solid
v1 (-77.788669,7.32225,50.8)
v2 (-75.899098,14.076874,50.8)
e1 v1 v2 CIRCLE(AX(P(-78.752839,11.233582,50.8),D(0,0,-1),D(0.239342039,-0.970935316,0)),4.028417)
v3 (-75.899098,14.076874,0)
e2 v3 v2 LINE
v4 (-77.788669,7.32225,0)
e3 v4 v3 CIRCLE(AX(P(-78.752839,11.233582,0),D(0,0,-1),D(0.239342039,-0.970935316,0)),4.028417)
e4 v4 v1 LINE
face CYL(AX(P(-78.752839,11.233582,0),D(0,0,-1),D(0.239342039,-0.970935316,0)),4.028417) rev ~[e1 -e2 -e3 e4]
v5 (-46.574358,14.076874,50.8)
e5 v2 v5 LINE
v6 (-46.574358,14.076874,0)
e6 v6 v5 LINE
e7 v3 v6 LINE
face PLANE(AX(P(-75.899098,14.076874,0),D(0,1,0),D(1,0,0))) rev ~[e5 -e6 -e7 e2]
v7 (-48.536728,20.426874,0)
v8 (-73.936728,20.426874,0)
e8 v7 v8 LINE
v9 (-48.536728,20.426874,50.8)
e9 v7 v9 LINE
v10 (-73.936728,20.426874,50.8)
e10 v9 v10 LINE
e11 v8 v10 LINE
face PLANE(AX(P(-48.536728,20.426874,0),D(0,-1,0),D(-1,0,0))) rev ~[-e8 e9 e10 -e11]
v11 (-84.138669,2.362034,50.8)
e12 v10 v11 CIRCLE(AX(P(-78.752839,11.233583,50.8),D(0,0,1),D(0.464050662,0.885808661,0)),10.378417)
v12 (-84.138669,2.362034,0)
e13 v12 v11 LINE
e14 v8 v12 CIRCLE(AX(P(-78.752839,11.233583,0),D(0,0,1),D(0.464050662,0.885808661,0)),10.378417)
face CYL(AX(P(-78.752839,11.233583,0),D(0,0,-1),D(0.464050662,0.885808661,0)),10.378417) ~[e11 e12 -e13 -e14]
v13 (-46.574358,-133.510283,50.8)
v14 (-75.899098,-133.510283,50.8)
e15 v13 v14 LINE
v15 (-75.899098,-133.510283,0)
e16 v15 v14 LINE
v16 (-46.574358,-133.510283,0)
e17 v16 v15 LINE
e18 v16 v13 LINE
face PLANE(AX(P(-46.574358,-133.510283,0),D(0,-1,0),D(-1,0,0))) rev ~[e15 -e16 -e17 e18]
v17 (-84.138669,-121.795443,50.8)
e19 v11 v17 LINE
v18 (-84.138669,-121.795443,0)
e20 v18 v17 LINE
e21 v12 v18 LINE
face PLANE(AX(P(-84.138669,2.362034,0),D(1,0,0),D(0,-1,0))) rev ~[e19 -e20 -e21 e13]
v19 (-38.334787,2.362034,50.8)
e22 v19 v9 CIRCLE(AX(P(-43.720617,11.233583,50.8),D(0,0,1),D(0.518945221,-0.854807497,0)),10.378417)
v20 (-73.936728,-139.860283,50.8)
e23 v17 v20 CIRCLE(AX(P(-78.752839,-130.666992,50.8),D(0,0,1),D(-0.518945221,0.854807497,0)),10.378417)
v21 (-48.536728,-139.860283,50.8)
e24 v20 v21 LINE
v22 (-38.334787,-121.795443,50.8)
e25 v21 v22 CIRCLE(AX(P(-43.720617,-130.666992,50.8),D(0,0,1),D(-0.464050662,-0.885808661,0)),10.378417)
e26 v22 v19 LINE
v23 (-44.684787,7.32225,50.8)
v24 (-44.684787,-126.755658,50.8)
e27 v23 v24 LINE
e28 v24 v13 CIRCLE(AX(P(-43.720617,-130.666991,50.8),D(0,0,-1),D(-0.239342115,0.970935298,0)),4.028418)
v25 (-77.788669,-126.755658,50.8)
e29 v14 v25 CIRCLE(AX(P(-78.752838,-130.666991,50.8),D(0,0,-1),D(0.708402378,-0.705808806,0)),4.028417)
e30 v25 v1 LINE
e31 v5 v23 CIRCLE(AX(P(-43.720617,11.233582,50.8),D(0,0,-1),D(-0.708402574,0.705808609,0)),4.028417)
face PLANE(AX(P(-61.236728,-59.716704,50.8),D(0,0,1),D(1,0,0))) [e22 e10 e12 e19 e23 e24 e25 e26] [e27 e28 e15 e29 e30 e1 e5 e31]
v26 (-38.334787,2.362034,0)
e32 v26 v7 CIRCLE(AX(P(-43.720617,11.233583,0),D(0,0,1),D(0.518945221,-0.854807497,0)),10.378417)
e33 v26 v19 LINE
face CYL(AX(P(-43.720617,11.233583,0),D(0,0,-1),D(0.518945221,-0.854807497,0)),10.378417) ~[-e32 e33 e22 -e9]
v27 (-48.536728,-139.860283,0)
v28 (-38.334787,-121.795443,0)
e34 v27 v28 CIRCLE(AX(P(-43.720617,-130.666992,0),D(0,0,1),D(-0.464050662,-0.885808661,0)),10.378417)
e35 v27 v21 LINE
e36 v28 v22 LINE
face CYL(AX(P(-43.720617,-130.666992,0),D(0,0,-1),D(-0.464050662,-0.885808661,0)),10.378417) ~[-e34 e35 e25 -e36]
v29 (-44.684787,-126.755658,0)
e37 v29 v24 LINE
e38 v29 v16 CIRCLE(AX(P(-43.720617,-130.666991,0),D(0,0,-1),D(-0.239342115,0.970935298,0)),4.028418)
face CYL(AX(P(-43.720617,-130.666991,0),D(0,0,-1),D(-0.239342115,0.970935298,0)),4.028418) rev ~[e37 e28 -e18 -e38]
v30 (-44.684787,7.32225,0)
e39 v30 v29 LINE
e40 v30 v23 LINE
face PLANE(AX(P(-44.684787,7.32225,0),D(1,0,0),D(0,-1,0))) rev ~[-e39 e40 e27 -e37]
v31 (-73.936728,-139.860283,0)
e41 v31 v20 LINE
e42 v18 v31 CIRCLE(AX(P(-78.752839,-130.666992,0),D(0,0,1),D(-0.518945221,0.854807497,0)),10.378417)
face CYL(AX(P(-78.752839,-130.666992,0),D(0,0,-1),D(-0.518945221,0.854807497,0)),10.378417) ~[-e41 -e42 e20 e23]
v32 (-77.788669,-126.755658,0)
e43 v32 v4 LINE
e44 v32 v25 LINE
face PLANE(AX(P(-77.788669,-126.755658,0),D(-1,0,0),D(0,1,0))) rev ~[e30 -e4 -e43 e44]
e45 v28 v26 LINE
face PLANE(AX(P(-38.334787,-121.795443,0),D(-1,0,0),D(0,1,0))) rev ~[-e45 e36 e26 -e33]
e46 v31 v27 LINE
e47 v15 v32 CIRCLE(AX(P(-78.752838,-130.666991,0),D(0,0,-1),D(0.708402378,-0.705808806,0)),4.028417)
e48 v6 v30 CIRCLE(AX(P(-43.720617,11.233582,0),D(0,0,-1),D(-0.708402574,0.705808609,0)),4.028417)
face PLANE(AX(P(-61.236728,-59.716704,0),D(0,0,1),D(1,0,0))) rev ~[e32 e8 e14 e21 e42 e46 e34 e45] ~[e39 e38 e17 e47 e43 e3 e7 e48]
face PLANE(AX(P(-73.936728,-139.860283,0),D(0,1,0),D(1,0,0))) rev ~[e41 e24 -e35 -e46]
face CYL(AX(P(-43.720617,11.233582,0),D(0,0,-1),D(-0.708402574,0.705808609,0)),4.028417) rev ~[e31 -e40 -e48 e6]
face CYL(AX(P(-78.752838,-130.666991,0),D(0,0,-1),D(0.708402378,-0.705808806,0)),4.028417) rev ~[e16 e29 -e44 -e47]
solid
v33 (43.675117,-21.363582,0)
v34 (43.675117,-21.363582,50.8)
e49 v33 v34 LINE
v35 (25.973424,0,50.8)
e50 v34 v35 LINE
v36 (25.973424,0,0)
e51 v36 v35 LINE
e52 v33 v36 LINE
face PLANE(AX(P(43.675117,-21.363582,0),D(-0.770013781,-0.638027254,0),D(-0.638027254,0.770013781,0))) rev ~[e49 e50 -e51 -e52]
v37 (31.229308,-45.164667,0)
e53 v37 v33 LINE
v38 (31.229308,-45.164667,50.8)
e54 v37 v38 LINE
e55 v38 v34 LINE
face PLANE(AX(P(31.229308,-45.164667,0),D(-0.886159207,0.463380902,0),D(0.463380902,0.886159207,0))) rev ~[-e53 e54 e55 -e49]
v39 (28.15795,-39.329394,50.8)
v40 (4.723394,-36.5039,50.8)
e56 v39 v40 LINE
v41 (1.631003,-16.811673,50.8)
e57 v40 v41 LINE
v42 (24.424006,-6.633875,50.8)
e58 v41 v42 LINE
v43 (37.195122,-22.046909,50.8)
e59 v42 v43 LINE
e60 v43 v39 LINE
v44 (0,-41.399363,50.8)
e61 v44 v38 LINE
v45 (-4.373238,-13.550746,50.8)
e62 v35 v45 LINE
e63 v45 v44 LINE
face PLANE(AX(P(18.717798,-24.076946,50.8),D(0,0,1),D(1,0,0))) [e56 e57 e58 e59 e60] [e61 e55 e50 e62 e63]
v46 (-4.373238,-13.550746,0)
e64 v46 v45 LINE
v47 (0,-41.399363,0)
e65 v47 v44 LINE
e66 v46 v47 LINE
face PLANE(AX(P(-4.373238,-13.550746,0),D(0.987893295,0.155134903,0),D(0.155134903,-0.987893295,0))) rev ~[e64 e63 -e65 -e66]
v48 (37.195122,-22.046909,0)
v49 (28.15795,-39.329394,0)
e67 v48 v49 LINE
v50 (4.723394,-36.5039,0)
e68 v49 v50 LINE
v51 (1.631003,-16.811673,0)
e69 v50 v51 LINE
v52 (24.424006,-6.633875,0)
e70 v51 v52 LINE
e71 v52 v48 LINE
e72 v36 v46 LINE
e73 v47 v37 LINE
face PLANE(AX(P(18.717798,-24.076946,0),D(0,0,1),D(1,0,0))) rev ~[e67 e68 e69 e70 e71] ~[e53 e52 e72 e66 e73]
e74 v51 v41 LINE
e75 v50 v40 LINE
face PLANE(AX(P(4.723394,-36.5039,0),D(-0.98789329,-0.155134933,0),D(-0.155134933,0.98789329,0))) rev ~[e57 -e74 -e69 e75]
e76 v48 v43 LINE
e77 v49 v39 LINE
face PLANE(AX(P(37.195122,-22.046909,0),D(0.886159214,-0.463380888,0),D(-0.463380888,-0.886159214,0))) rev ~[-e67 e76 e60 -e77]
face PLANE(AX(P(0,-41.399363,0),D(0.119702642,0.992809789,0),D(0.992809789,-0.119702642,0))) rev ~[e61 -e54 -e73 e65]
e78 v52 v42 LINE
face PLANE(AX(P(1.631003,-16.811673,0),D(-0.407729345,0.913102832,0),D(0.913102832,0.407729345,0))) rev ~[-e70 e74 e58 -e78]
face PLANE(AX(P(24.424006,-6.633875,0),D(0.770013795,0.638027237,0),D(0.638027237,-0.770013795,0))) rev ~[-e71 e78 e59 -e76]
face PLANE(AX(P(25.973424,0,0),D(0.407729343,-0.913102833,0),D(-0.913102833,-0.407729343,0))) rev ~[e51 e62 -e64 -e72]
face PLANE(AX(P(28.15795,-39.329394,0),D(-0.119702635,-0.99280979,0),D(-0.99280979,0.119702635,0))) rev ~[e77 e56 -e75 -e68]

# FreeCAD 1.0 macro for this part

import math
import FreeCAD as App
import Part
import Sketcher

V = App.Vector
Q = App.Units.Quantity


def add_polygon(sketch, points):
    """Adds a closed chain of lines whose ends are joined by coincident constraints."""
    first, n = sketch.GeometryCount, len(points)
    for a, b in zip(points, points[1:] + points[:1]):
        sketch.addGeometry(Part.LineSegment(App.Vector(*a, 0), App.Vector(*b, 0)), False)
    for i in range(n):
        sketch.addConstraint(Sketcher.Constraint("Coincident", first + i, 2, first + (i + 1) % n, 1))

doc = App.newDocument("Part")
body = doc.addObject("PartDesign::Body", "Body")

sketch1 = doc.addObject("Sketcher::SketchObject", "Sketch")
body.addObject(sketch1)
sketch1.AttachmentSupport = (doc.XY_Plane, [""])
sketch1.MapMode = "FlatFace"
sketch1.addGeometry(Part.LineSegment(V(-84.1, 2.4, 0), V(-84.1, -121.8, 0)), False)
sketch1.addGeometry(Part.ArcOfCircle(Part.Circle(V(-78.8, -130.7, 0), V(0, 0, 1), 10.4), math.radians(121), math.radians(298)), False)
sketch1.addGeometry(Part.LineSegment(V(-73.9, -139.9, 0), V(-48.5, -139.9, 0)), False)
sketch1.addGeometry(Part.ArcOfCircle(Part.Circle(V(-43.7, -130.7, 0), V(0, 0, 1), 10.4), math.radians(-118), math.radians(59)), False)
sketch1.addGeometry(Part.LineSegment(V(-38.3, -121.8, 0), V(-38.3, 2.4, 0)), False)
sketch1.addGeometry(Part.ArcOfCircle(Part.Circle(V(-43.7, 11.2, 0), V(0, 0, 1), 10.4), math.radians(-59), math.radians(118)), False)
sketch1.addGeometry(Part.LineSegment(V(-48.5, 20.4, 0), V(-73.9, 20.4, 0)), False)
sketch1.addGeometry(Part.ArcOfCircle(Part.Circle(V(-78.8, 11.2, 0), V(0, 0, 1), 10.4), math.radians(62), math.radians(239)), False)
sketch1.addGeometry(Part.ArcOfCircle(Part.Circle(V(-78.8, -130.7, 0), V(0, 0, 1), 4), math.radians(76), math.radians(315)), False)
sketch1.addGeometry(Part.LineSegment(V(-77.8, -126.8, 0), V(-77.8, 7.3, 0)), False)
sketch1.addGeometry(Part.ArcOfCircle(Part.Circle(V(-78.8, 11.2, 0), V(0, 0, 1), 4), math.radians(45), math.radians(284)), False)
sketch1.addGeometry(Part.LineSegment(V(-75.9, 14.1, 0), V(-46.6, 14.1, 0)), False)
sketch1.addGeometry(Part.ArcOfCircle(Part.Circle(V(-43.7, 11.2, 0), V(0, 0, 1), 4), math.radians(-104), math.radians(135)), False)
sketch1.addGeometry(Part.LineSegment(V(-44.7, 7.3, 0), V(-44.7, -126.8, 0)), False)
sketch1.addGeometry(Part.ArcOfCircle(Part.Circle(V(-43.7, -130.7, 0), V(0, 0, 1), 4), math.radians(-135), math.radians(104)), False)
sketch1.addGeometry(Part.LineSegment(V(-46.6, -133.5, 0), V(-75.9, -133.5, 0)), False)
sketch1.addConstraint(Sketcher.Constraint("Coincident", 0, 2, 1, 1))
sketch1.addConstraint(Sketcher.Constraint("Coincident", 1, 2, 2, 1))
sketch1.addConstraint(Sketcher.Constraint("Coincident", 2, 2, 3, 1))
sketch1.addConstraint(Sketcher.Constraint("Coincident", 3, 2, 4, 1))
sketch1.addConstraint(Sketcher.Constraint("Coincident", 4, 2, 5, 1))
sketch1.addConstraint(Sketcher.Constraint("Coincident", 5, 2, 6, 1))
sketch1.addConstraint(Sketcher.Constraint("Coincident", 6, 2, 7, 1))
sketch1.addConstraint(Sketcher.Constraint("Coincident", 7, 2, 0, 1))
sketch1.addConstraint(Sketcher.Constraint("Coincident", 8, 1, 9, 1))
sketch1.addConstraint(Sketcher.Constraint("Coincident", 9, 2, 10, 2))
sketch1.addConstraint(Sketcher.Constraint("Coincident", 10, 1, 11, 1))
sketch1.addConstraint(Sketcher.Constraint("Coincident", 11, 2, 12, 2))
sketch1.addConstraint(Sketcher.Constraint("Coincident", 12, 1, 13, 1))
sketch1.addConstraint(Sketcher.Constraint("Coincident", 13, 2, 14, 2))
sketch1.addConstraint(Sketcher.Constraint("Coincident", 14, 1, 15, 1))
sketch1.addConstraint(Sketcher.Constraint("Coincident", 15, 2, 8, 2))
sketch1.addConstraint(Sketcher.Constraint("Vertical", 0))
sketch1.addConstraint(Sketcher.Constraint("Horizontal", 2))
sketch1.addConstraint(Sketcher.Constraint("Vertical", 4))
sketch1.addConstraint(Sketcher.Constraint("Horizontal", 6))
sketch1.addConstraint(Sketcher.Constraint("Vertical", 9))
sketch1.addConstraint(Sketcher.Constraint("Horizontal", 11))
sketch1.addConstraint(Sketcher.Constraint("Vertical", 13))
sketch1.addConstraint(Sketcher.Constraint("Horizontal", 15))
sketch1.addConstraint(Sketcher.Constraint("Coincident", 8, 3, 1, 3))
sketch1.addConstraint(Sketcher.Constraint("Coincident", 10, 3, 7, 3))
sketch1.addConstraint(Sketcher.Constraint("Coincident", 12, 3, 5, 3))
sketch1.addConstraint(Sketcher.Constraint("Coincident", 14, 3, 3, 3))
sketch1.addConstraint(Sketcher.Constraint("Equal", 1, 3))
sketch1.addConstraint(Sketcher.Constraint("Equal", 3, 5))
sketch1.addConstraint(Sketcher.Constraint("Equal", 5, 7))
sketch1.addConstraint(Sketcher.Constraint("Equal", 8, 10))
sketch1.addConstraint(Sketcher.Constraint("Equal", 10, 12))
sketch1.addConstraint(Sketcher.Constraint("Equal", 12, 14))
sketch1.addConstraint(Sketcher.Constraint("Horizontal", 1, 3, 3, 3))
sketch1.addConstraint(Sketcher.Constraint("Horizontal", 5, 3, 7, 3))
sketch1.addConstraint(Sketcher.Constraint("Horizontal", 0, 2, 3, 2))
sketch1.addConstraint(Sketcher.Constraint("Horizontal", 4, 2, 7, 2))
sketch1.addConstraint(Sketcher.Constraint("Horizontal", 9, 2, 12, 1))
sketch1.addConstraint(Sketcher.Constraint("Vertical", 3, 3, 5, 3))
sketch1.addConstraint(Sketcher.Constraint("Vertical", 2, 2, 5, 2))
sketch1.addConstraint(Sketcher.Constraint("Vertical", 11, 2, 14, 1))
sketch1.addConstraint(Sketcher.Constraint("DistanceX", 2, 1, 2, 2, Q("1 in")))
sketch1.addConstraint(Sketcher.Constraint("DistanceX", 0, 2, 8, 1, Q("0.25 in")))
sketch1.addConstraint(Sketcher.Constraint("DistanceY", 10, 1, 6, 2, Q("0.25 in")))
sketch1.addConstraint(Sketcher.Constraint("Radius", 1, 10.378417))
sketch1.addConstraint(Sketcher.Constraint("Radius", 8, 4.028417))
sketch1.addConstraint(Sketcher.Constraint("DistanceX", 11, 1, 11, 2, 29.32474))
sketch1.addConstraint(Sketcher.Constraint("DistanceY", 9, 1, 9, 2, 134.077908))
sketch1.addConstraint(Sketcher.Constraint("DistanceY", 0, 2, 0, 1, 124.157477))
sketch1.addConstraint(Sketcher.Constraint("DistanceX", 1, 3, -1, 1, 78.752839))
sketch1.addConstraint(Sketcher.Constraint("DistanceY", 1, 3, -1, 1, 130.666992))
pad1 = doc.addObject("PartDesign::Pad", "Pad")
body.addObject(pad1)
pad1.Profile = sketch1
pad1.Length = Q("2 in")
body2 = doc.addObject("PartDesign::Body", "Body001")

sketch2 = doc.addObject("Sketcher::SketchObject", "Sketch001")
body2.addObject(sketch2)
sketch2.AttachmentSupport = (doc.getObject("XY_Plane001"), [""])
sketch2.MapMode = "FlatFace"
add_polygon(sketch2, [(-4, -14), (0, -41), (31, -45), (44, -21), (26, 0)])
add_polygon(sketch2, [(5, -37), (2, -17), (24, -7), (37, -22), (28, -39)])
sketch2.addConstraint(Sketcher.Constraint("PointOnObject", 0, 2, -2))
sketch2.addConstraint(Sketcher.Constraint("PointOnObject", 3, 2, -1))
sketch2.addConstraint(Sketcher.Constraint("Parallel", 0, 5))
sketch2.addConstraint(Sketcher.Constraint("Parallel", 4, 6))
sketch2.addConstraint(Sketcher.Constraint("Parallel", 3, 7))
sketch2.addConstraint(Sketcher.Constraint("Parallel", 2, 8))
sketch2.addConstraint(Sketcher.Constraint("Parallel", 1, 9))
sketch2.addConstraint(Sketcher.Constraint("Distance", 3, Q("1.0922998 in")))
sketch2.addConstraint(Sketcher.Constraint("DistanceX", 6, 2, 7, 2, Q("0.5027998 in")))
sketch2.addConstraint(Sketcher.Constraint("Distance", 2, 26.858701))
sketch2.addConstraint(Sketcher.Constraint("DistanceY", 9, 2, -1, 1, 36.5039))
sketch2.addConstraint(Sketcher.Constraint("Distance", 1, 31.45548))
sketch2.addConstraint(Sketcher.Constraint("Distance", 4, 33.23466))
sketch2.addConstraint(Sketcher.Constraint("Distance", 7, 20.016569))
sketch2.addConstraint(Sketcher.Constraint("DistanceX", -1, 1, 7, 2, 37.195122))
sketch2.addConstraint(Sketcher.Constraint("DistanceY", 7, 2, -1, 1, 22.046909))
sketch2.addConstraint(Sketcher.Constraint("DistanceX", -1, 1, 8, 2, 28.15795))
sketch2.addConstraint(Sketcher.Constraint("DistanceX", 1, 2, 2, 2, 12.445809))
sketch2.addConstraint(Sketcher.Constraint("DistanceY", 0, 2, 2, 2, 20.035781))
sketch2.addConstraint(Sketcher.Constraint("DistanceY", 1, 2, 4, 2, 31.613921))
pad2 = doc.addObject("PartDesign::Pad", "Pad001")
body2.addObject(pad2)
pad2.Profile = sketch2
pad2.Length = Q("2 in")

doc.recompute()
